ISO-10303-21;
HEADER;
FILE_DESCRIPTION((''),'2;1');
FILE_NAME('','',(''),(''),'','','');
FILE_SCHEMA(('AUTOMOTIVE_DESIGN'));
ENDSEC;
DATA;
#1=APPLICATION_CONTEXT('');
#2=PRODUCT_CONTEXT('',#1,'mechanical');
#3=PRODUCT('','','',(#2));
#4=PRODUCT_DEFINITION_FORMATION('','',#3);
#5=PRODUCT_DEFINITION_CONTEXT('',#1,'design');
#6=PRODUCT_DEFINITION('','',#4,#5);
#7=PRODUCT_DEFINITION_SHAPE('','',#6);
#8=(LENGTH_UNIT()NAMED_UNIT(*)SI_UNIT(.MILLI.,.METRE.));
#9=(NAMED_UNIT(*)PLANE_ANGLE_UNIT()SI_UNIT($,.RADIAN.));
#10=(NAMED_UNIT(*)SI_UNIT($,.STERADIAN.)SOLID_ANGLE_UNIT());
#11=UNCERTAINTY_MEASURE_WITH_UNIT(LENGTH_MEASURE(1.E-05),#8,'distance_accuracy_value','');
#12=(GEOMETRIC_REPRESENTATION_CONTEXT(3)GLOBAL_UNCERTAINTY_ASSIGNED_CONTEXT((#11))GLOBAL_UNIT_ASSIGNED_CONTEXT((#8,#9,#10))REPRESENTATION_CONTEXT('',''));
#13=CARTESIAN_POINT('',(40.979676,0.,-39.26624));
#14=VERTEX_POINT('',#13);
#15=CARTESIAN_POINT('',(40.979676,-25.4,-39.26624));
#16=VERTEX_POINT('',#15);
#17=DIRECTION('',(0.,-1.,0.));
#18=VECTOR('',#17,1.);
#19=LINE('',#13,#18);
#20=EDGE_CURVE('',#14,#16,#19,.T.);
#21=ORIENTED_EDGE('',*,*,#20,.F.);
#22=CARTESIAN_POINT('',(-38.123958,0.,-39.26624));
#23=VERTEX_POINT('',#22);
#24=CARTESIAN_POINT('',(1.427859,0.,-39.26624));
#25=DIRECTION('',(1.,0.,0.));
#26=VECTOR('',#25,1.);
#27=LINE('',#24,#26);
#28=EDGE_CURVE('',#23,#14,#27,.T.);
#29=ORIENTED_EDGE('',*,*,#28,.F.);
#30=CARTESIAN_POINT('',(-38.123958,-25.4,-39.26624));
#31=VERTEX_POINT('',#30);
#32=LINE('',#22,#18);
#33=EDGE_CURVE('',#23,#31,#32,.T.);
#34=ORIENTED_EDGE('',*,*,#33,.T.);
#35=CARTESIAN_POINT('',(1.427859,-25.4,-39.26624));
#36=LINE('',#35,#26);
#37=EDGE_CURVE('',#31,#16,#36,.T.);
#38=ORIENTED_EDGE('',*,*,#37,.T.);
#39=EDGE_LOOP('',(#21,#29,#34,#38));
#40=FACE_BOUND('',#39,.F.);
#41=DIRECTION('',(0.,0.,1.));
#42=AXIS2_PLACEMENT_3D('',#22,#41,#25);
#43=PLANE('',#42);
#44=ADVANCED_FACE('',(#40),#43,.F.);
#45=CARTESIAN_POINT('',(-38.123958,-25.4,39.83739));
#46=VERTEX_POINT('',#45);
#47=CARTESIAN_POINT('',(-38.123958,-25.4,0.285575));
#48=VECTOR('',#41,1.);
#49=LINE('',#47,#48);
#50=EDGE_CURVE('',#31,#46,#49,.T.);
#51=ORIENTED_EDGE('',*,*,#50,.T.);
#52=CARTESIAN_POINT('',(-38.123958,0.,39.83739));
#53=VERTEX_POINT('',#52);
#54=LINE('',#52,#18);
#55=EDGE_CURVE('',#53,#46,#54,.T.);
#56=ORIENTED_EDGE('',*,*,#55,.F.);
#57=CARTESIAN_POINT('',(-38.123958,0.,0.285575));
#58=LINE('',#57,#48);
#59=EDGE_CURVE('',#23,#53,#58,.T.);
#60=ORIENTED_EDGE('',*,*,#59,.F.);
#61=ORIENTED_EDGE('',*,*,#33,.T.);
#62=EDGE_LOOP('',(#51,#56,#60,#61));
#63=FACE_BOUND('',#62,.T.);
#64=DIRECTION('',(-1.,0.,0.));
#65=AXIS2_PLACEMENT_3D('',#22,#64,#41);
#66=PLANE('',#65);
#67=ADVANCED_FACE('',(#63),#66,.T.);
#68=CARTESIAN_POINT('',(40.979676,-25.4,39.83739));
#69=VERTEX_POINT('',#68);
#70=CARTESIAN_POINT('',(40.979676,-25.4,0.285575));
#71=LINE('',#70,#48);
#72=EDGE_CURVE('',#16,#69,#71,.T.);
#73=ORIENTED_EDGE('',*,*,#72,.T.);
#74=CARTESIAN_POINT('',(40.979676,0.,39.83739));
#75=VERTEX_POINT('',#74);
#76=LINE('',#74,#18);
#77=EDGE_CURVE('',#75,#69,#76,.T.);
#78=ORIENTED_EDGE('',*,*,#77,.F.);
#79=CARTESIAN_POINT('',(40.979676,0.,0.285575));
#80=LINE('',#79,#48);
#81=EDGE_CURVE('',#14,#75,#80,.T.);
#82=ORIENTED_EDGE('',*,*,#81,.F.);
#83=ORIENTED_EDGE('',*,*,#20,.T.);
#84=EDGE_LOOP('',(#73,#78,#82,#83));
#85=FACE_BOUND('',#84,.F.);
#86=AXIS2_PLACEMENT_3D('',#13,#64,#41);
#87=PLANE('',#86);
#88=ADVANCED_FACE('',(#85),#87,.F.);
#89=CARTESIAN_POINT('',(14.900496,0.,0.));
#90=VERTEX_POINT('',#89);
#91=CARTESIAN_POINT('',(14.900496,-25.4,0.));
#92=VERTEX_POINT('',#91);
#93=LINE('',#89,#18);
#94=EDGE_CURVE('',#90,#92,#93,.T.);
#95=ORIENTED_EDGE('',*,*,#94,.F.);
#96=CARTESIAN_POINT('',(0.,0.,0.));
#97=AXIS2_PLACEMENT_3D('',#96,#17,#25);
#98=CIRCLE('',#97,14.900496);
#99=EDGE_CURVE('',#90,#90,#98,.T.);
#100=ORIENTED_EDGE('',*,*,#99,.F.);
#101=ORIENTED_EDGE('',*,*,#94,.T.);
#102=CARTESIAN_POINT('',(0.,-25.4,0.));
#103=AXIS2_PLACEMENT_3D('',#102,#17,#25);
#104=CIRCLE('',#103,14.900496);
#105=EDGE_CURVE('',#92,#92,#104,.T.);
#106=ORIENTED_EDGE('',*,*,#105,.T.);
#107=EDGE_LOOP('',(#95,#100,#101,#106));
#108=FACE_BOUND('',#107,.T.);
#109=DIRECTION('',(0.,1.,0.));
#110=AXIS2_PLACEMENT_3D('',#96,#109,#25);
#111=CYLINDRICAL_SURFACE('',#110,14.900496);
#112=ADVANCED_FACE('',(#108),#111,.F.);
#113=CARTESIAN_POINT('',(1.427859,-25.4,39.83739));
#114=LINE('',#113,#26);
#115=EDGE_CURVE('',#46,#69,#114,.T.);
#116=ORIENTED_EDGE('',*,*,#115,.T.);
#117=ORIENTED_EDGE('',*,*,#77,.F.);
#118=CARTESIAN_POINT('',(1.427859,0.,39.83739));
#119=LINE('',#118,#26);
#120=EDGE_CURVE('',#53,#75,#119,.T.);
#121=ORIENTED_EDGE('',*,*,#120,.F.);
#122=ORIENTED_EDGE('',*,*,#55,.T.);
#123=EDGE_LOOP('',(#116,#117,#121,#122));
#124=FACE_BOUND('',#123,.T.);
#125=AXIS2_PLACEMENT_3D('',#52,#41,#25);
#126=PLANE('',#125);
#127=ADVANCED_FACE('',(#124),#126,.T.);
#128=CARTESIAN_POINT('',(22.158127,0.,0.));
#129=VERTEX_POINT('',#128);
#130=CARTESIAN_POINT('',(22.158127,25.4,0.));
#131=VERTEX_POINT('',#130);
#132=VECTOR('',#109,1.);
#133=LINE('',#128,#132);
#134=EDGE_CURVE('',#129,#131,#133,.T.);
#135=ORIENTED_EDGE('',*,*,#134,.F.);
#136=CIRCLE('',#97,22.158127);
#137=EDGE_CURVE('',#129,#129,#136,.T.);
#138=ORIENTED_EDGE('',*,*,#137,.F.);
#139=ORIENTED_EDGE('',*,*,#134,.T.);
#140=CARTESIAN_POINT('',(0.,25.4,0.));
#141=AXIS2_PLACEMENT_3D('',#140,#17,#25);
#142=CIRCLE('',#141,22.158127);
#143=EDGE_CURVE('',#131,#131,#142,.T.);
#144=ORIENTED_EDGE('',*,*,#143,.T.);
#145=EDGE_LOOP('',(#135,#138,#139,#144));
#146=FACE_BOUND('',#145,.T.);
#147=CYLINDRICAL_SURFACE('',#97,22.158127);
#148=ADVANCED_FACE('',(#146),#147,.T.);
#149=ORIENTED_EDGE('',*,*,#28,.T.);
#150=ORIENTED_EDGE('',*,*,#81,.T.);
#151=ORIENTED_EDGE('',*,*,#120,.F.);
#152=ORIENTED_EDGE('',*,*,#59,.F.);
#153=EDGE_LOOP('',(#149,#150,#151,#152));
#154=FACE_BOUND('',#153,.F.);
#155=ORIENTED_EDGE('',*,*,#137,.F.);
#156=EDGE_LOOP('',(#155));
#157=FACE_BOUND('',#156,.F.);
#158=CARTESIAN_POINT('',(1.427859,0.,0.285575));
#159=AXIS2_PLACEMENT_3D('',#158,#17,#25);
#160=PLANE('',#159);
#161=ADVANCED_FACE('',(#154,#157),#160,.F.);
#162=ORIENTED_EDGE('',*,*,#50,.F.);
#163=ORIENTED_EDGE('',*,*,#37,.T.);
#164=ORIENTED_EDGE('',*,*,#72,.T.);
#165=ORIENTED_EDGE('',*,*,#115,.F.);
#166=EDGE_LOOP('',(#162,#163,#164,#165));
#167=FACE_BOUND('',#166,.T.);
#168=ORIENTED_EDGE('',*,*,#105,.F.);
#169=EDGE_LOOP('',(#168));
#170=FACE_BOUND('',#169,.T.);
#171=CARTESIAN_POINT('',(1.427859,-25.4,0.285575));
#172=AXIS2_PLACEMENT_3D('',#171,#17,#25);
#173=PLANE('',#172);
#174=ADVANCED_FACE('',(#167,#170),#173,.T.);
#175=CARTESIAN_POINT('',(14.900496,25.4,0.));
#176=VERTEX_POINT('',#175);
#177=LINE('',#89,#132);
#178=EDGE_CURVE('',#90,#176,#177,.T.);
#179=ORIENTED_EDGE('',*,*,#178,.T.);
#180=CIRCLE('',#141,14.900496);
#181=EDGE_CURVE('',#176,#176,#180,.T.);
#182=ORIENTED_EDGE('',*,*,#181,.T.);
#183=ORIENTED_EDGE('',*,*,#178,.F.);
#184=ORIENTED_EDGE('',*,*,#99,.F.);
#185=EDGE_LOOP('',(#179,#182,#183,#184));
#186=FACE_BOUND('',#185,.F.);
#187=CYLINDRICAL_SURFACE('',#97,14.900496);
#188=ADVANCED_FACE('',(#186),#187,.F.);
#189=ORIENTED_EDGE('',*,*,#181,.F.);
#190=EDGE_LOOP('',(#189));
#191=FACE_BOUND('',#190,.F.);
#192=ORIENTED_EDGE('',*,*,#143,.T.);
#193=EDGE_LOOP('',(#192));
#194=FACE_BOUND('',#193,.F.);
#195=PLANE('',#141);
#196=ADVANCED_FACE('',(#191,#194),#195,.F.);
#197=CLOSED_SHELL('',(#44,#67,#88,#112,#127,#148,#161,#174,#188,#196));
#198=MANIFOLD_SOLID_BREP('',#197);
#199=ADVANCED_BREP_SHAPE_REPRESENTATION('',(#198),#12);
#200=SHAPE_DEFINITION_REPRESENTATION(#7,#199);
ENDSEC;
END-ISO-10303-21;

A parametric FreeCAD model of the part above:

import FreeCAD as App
import Part
import Sketcher
Q = App.Units.Quantity

doc = App.newDocument("Part")
body = doc.addObject("PartDesign::Body", "Body")

# Sketch on XZ plane
sketch1 = doc.addObject("Sketcher::SketchObject", "Sketch")
body.addObject(sketch1)
sketch1.AttachmentSupport = (doc.XZ_Plane, [""])
sketch1.MapMode = "FlatFace"
sketch1.addGeometry(Part.LineSegment(App.Vector(-38, 40, 0), App.Vector(-38, -39, 0)), False)
sketch1.addGeometry(Part.LineSegment(App.Vector(-38, -39, 0), App.Vector(41, -39, 0)), False)
sketch1.addGeometry(Part.LineSegment(App.Vector(41, -39, 0), App.Vector(41, 40, 0)), False)
sketch1.addGeometry(Part.LineSegment(App.Vector(41, 40, 0), App.Vector(-38, 40, 0)), False)
sketch1.addGeometry(Part.Circle(App.Vector(0, 0, 0), App.Vector(0, 0, 1), 15), False)
sketch1.addConstraint(Sketcher.Constraint("Coincident", 0, 2, 1, 1))
sketch1.addConstraint(Sketcher.Constraint("Coincident", 1, 2, 2, 1))
sketch1.addConstraint(Sketcher.Constraint("Coincident", 2, 2, 3, 1))
sketch1.addConstraint(Sketcher.Constraint("Coincident", 3, 2, 0, 1))
sketch1.addConstraint(Sketcher.Constraint("Vertical", 0))
sketch1.addConstraint(Sketcher.Constraint("Horizontal", 1))
sketch1.addConstraint(Sketcher.Constraint("Vertical", 2))
sketch1.addConstraint(Sketcher.Constraint("Horizontal", 3))
sketch1.addConstraint(Sketcher.Constraint("Coincident", 4, 3, -1, 1))
sketch1.addConstraint(Sketcher.Constraint("Diameter", 4, Q("29.800992 mm")))
sketch1.addConstraint(Sketcher.Constraint("DistanceY", 0, 2, 0, 1, Q("79.10363 mm")))
sketch1.addConstraint(Sketcher.Constraint("DistanceX", 1, 1, 1, 2, Q("79.103634 mm")))
sketch1.addConstraint(Sketcher.Constraint("DistanceX", 0, 2, -1, 1, Q("38.123958 mm")))
sketch1.addConstraint(Sketcher.Constraint("DistanceY", 0, 2, -1, 1, Q("39.26624 mm")))
pad1 = doc.addObject("PartDesign::Pad", "Pad")
body.addObject(pad1)
pad1.Profile = sketch1
pad1.Length = Q("1 in")

# Sketch on XZ plane
sketch2 = doc.addObject("Sketcher::SketchObject", "Sketch001")
body.addObject(sketch2)
sketch2.AttachmentSupport = (doc.XZ_Plane, [""])
sketch2.MapMode = "FlatFace"
sketch2.addGeometry(Part.Circle(App.Vector(0, 0, 0), App.Vector(0, 0, 1), 22), False)
sketch2.addGeometry(Part.Circle(App.Vector(0, 0, 0), App.Vector(0, 0, 1), 15), False)
sketch2.addConstraint(Sketcher.Constraint("Coincident", 0, 3, -1, 1))
sketch2.addConstraint(Sketcher.Constraint("Coincident", 1, 3, -1, 1))
sketch2.addConstraint(Sketcher.Constraint("Diameter", 0, Q("44.316254 mm")))
sketch2.addConstraint(Sketcher.Constraint("Diameter", 1, Q("29.800992 mm")))
pad2 = doc.addObject("PartDesign::Pad", "Pad001")
body.addObject(pad2)
pad2.Profile = sketch2
pad2.Length = Q("1 in")
pad2.Reversed = True

# Sketch on XZ plane
sketch3 = doc.addObject("Sketcher::SketchObject", "Sketch002")
body.addObject(sketch3)
sketch3.AttachmentSupport = (doc.XZ_Plane, [""])
sketch3.MapMode = "FlatFace"
sketch3.addGeometry(Part.Circle(App.Vector(0, 0, 0), App.Vector(0, 0, 1), 15), False)
sketch3.addConstraint(Sketcher.Constraint("Coincident", 0, 3, -1, 1))
sketch3.addConstraint(Sketcher.Constraint("Diameter", 0, Q("29.800992 mm")))
pocket1 = doc.addObject("PartDesign::Pocket", "Pocket")
body.addObject(pocket1)
pocket1.Profile = sketch3
pocket1.Type = "ThroughAll"
pocket1.Reversed = True

doc.recompute()
